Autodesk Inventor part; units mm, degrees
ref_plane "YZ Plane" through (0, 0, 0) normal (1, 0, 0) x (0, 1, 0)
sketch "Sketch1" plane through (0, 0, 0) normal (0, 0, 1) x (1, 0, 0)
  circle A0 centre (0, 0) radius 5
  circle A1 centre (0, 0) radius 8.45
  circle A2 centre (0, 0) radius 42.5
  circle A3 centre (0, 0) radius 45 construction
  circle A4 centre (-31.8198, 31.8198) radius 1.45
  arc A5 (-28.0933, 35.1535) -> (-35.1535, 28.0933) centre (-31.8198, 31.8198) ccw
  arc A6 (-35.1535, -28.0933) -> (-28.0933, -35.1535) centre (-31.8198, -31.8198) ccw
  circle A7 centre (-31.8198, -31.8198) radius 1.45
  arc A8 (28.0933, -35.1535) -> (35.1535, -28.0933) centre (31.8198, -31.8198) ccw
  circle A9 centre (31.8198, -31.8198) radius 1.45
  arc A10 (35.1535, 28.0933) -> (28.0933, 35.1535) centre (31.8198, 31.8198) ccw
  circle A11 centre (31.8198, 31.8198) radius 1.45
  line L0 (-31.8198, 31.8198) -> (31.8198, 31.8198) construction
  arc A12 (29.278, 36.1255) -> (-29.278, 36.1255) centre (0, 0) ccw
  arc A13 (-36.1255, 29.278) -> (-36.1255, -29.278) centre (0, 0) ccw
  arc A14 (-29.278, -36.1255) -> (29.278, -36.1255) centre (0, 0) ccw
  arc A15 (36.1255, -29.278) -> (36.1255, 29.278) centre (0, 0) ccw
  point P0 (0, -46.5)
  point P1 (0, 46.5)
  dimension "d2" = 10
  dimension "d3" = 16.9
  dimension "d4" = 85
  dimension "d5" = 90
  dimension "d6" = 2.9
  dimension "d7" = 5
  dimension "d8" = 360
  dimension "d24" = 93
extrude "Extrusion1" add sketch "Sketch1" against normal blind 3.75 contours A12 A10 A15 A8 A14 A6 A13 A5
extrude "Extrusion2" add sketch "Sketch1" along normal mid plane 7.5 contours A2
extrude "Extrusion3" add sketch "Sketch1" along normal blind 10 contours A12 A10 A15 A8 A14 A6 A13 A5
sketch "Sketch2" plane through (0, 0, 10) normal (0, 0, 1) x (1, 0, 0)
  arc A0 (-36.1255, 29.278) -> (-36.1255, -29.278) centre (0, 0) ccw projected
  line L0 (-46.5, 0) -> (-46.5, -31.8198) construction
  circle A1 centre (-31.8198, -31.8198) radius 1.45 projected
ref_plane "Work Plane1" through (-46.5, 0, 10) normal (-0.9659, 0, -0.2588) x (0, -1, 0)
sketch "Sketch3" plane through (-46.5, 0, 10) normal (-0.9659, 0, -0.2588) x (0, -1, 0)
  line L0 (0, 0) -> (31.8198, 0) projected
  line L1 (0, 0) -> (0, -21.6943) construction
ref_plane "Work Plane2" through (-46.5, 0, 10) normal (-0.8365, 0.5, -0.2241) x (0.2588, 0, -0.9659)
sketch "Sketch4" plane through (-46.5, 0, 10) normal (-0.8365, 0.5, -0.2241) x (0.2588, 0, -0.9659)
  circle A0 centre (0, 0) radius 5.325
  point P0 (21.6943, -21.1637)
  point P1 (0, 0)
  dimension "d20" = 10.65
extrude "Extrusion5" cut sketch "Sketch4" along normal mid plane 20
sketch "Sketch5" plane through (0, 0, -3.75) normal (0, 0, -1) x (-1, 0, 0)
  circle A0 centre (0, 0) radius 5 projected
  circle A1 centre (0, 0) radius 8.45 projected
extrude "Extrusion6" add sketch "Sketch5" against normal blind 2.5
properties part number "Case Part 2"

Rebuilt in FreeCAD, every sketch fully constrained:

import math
import FreeCAD as App
import Part
import Sketcher

V = App.Vector
Q = App.Units.Quantity

doc = App.newDocument("Part")
body = doc.addObject("PartDesign::Body", "Body")

# Sketch on XY plane
sketch1 = body.newObject("Sketcher::SketchObject", "Sketch")
sketch1.AttachmentSupport = (doc.getObject("XY_Plane"), [""])
sketch1.MapMode = "FlatFace"
sketch1.addGeometry(Part.ArcOfCircle(Part.Circle(V(0, 0, 0), V(0, 0, 1), 46.5), math.radians(51), math.radians(129)), False)
sketch1.addGeometry(Part.ArcOfCircle(Part.Circle(V(-31.8, 31.8, 0), V(0, 0, 1), 5), math.radians(59), math.radians(211)), False)
sketch1.addGeometry(Part.ArcOfCircle(Part.Circle(V(0, 0, 0), V(0, 0, 1), 46.5), math.radians(141), math.radians(219)), False)
sketch1.addGeometry(Part.ArcOfCircle(Part.Circle(V(-31.8, -31.8, 0), V(0, 0, 1), 5), math.radians(149), math.radians(301)), False)
sketch1.addGeometry(Part.ArcOfCircle(Part.Circle(V(0, 0, 0), V(0, 0, 1), 46.5), math.radians(-129), math.radians(-51)), False)
sketch1.addGeometry(Part.ArcOfCircle(Part.Circle(V(31.8, -31.8, 0), V(0, 0, 1), 5), math.radians(-121), math.radians(31)), False)
sketch1.addGeometry(Part.ArcOfCircle(Part.Circle(V(0, 0, 0), V(0, 0, 1), 46.5), math.radians(-39), math.radians(39)), False)
sketch1.addGeometry(Part.ArcOfCircle(Part.Circle(V(31.8, 31.8, 0), V(0, 0, 1), 5), math.radians(-31), math.radians(121)), False)
sketch1.addGeometry(Part.Circle(V(-31.8, -31.8, 0), V(0, 0, 1), 1.4), False)
sketch1.addGeometry(Part.Circle(V(0, 0, 0), V(0, 0, 1), 42.5), False)
sketch1.addGeometry(Part.Circle(V(31.8, -31.8, 0), V(0, 0, 1), 1.4), False)
sketch1.addGeometry(Part.Circle(V(-31.8, 31.8, 0), V(0, 0, 1), 1.4), False)
sketch1.addGeometry(Part.Circle(V(31.8, 31.8, 0), V(0, 0, 1), 1.4), False)
sketch1.addConstraint(Sketcher.Constraint("Coincident", 0, 2, 1, 1))
sketch1.addConstraint(Sketcher.Constraint("Coincident", 1, 2, 2, 1))
sketch1.addConstraint(Sketcher.Constraint("Coincident", 2, 2, 3, 1))
sketch1.addConstraint(Sketcher.Constraint("Coincident", 3, 2, 4, 1))
sketch1.addConstraint(Sketcher.Constraint("Coincident", 4, 2, 5, 1))
sketch1.addConstraint(Sketcher.Constraint("Coincident", 5, 2, 6, 1))
sketch1.addConstraint(Sketcher.Constraint("Coincident", 6, 2, 7, 1))
sketch1.addConstraint(Sketcher.Constraint("Coincident", 7, 2, 0, 1))
sketch1.addConstraint(Sketcher.Constraint("Coincident", 0, 3, -1, 1))
sketch1.addConstraint(Sketcher.Constraint("Coincident", 2, 3, -1, 1))
sketch1.addConstraint(Sketcher.Constraint("Coincident", 4, 3, -1, 1))
sketch1.addConstraint(Sketcher.Constraint("Coincident", 6, 3, -1, 1))
sketch1.addConstraint(Sketcher.Constraint("Coincident", 9, 3, -1, 1))
sketch1.addConstraint(Sketcher.Constraint("Coincident", 8, 3, 3, 3))
sketch1.addConstraint(Sketcher.Constraint("Coincident", 10, 3, 5, 3))
sketch1.addConstraint(Sketcher.Constraint("Coincident", 11, 3, 1, 3))
sketch1.addConstraint(Sketcher.Constraint("Coincident", 12, 3, 7, 3))
sketch1.addConstraint(Sketcher.Constraint("Equal", 0, 2))
sketch1.addConstraint(Sketcher.Constraint("Equal", 1, 3))
sketch1.addConstraint(Sketcher.Constraint("Equal", 2, 4))
sketch1.addConstraint(Sketcher.Constraint("Equal", 3, 5))
sketch1.addConstraint(Sketcher.Constraint("Equal", 4, 6))
sketch1.addConstraint(Sketcher.Constraint("Equal", 5, 7))
sketch1.addConstraint(Sketcher.Constraint("Equal", 8, 10))
sketch1.addConstraint(Sketcher.Constraint("Equal", 10, 11))
sketch1.addConstraint(Sketcher.Constraint("Equal", 11, 12))
sketch1.addConstraint(Sketcher.Constraint("Symmetric", 1, 3, 5, 3, -1, 1))
sketch1.addConstraint(Sketcher.Constraint("Symmetric", 3, 3, 7, 3, -1, 1))
sketch1.addConstraint(Sketcher.Constraint("Symmetric", 3, 3, 5, 3, -2))
sketch1.addConstraint(Sketcher.Constraint("Diameter", 9, Q("85 mm")))
sketch1.addConstraint(Sketcher.Constraint("Radius", 1, Q("5 mm")))
sketch1.addConstraint(Sketcher.Constraint("Diameter", 8, Q("2.9 mm")))
sketch1.addConstraint(Sketcher.Constraint("Radius", 0, Q("46.5 mm")))
sketch1.addConstraint(Sketcher.Constraint("DistanceX", 0, 2, -1, 1, Q("29.278 mm")))
sketch1.addConstraint(Sketcher.Constraint("DistanceY", -1, 1, 1, 2, Q("29.278 mm")))
pad1 = body.newObject("PartDesign::Pad", "Pad")
pad1.Profile = sketch1
pad1.Length = 3.75
pad1.Reversed = True

# Sketch on XY plane
sketch2 = body.newObject("Sketcher::SketchObject", "Sketch001")
sketch2.AttachmentSupport = (doc.getObject("XY_Plane"), [""])
sketch2.MapMode = "FlatFace"
sketch2.addGeometry(Part.Circle(V(0, 0, 0), V(0, 0, 1), 42), False)
sketch2.addGeometry(Part.Circle(V(0, 0, 0), V(0, 0, 1), 8), False)
sketch2.addConstraint(Sketcher.Constraint("Coincident", 0, 3, -1, 1))
sketch2.addConstraint(Sketcher.Constraint("Coincident", 1, 3, -1, 1))
sketch2.addConstraint(Sketcher.Constraint("Diameter", 0, Q("85 mm")))
sketch2.addConstraint(Sketcher.Constraint("Diameter", 1, Q("16.9 mm")))
pad2 = body.newObject("PartDesign::Pad", "Pad001")
pad2.Profile = sketch2
pad2.Length = 7.5
pad2.Midplane = True

# Sketch on XY plane
sketch3 = body.newObject("Sketcher::SketchObject", "Sketch002")
sketch3.AttachmentSupport = (doc.getObject("XY_Plane"), [""])
sketch3.MapMode = "FlatFace"
sketch3.addGeometry(Part.ArcOfCircle(Part.Circle(V(0, 0, 0), V(0, 0, 1), 46.5), math.radians(51), math.radians(129)), False)
sketch3.addGeometry(Part.ArcOfCircle(Part.Circle(V(-31.8, 31.8, 0), V(0, 0, 1), 5), math.radians(59), math.radians(211)), False)
sketch3.addGeometry(Part.ArcOfCircle(Part.Circle(V(0, 0, 0), V(0, 0, 1), 46.5), math.radians(141), math.radians(219)), False)
sketch3.addGeometry(Part.ArcOfCircle(Part.Circle(V(-31.8, -31.8, 0), V(0, 0, 1), 5), math.radians(149), math.radians(301)), False)
sketch3.addGeometry(Part.ArcOfCircle(Part.Circle(V(0, 0, 0), V(0, 0, 1), 46.5), math.radians(-129), math.radians(-51)), False)
sketch3.addGeometry(Part.ArcOfCircle(Part.Circle(V(31.8, -31.8, 0), V(0, 0, 1), 5), math.radians(-121), math.radians(31)), False)
sketch3.addGeometry(Part.ArcOfCircle(Part.Circle(V(0, 0, 0), V(0, 0, 1), 46.5), math.radians(-39), math.radians(39)), False)
sketch3.addGeometry(Part.ArcOfCircle(Part.Circle(V(31.8, 31.8, 0), V(0, 0, 1), 5), math.radians(-31), math.radians(121)), False)
sketch3.addGeometry(Part.Circle(V(-31.8, -31.8, 0), V(0, 0, 1), 1.4), False)
sketch3.addGeometry(Part.Circle(V(0, 0, 0), V(0, 0, 1), 42.5), False)
sketch3.addGeometry(Part.Circle(V(31.8, -31.8, 0), V(0, 0, 1), 1.4), False)
sketch3.addGeometry(Part.Circle(V(-31.8, 31.8, 0), V(0, 0, 1), 1.4), False)
sketch3.addGeometry(Part.Circle(V(31.8, 31.8, 0), V(0, 0, 1), 1.4), False)
sketch3.addConstraint(Sketcher.Constraint("Coincident", 0, 2, 1, 1))
sketch3.addConstraint(Sketcher.Constraint("Coincident", 1, 2, 2, 1))
sketch3.addConstraint(Sketcher.Constraint("Coincident", 2, 2, 3, 1))
sketch3.addConstraint(Sketcher.Constraint("Coincident", 3, 2, 4, 1))
sketch3.addConstraint(Sketcher.Constraint("Coincident", 4, 2, 5, 1))
sketch3.addConstraint(Sketcher.Constraint("Coincident", 5, 2, 6, 1))
sketch3.addConstraint(Sketcher.Constraint("Coincident", 6, 2, 7, 1))
sketch3.addConstraint(Sketcher.Constraint("Coincident", 7, 2, 0, 1))
sketch3.addConstraint(Sketcher.Constraint("Coincident", 0, 3, -1, 1))
sketch3.addConstraint(Sketcher.Constraint("Coincident", 2, 3, -1, 1))
sketch3.addConstraint(Sketcher.Constraint("Coincident", 4, 3, -1, 1))
sketch3.addConstraint(Sketcher.Constraint("Coincident", 6, 3, -1, 1))
sketch3.addConstraint(Sketcher.Constraint("Coincident", 9, 3, -1, 1))
sketch3.addConstraint(Sketcher.Constraint("Coincident", 8, 3, 3, 3))
sketch3.addConstraint(Sketcher.Constraint("Coincident", 10, 3, 5, 3))
sketch3.addConstraint(Sketcher.Constraint("Coincident", 11, 3, 1, 3))
sketch3.addConstraint(Sketcher.Constraint("Coincident", 12, 3, 7, 3))
sketch3.addConstraint(Sketcher.Constraint("Equal", 0, 2))
sketch3.addConstraint(Sketcher.Constraint("Equal", 1, 3))
sketch3.addConstraint(Sketcher.Constraint("Equal", 2, 4))
sketch3.addConstraint(Sketcher.Constraint("Equal", 3, 5))
sketch3.addConstraint(Sketcher.Constraint("Equal", 4, 6))
sketch3.addConstraint(Sketcher.Constraint("Equal", 5, 7))
sketch3.addConstraint(Sketcher.Constraint("Equal", 8, 10))
sketch3.addConstraint(Sketcher.Constraint("Equal", 10, 11))
sketch3.addConstraint(Sketcher.Constraint("Equal", 11, 12))
sketch3.addConstraint(Sketcher.Constraint("Symmetric", 1, 3, 5, 3, -1, 1))
sketch3.addConstraint(Sketcher.Constraint("Symmetric", 3, 3, 7, 3, -1, 1))
sketch3.addConstraint(Sketcher.Constraint("Symmetric", 3, 3, 5, 3, -2))
sketch3.addConstraint(Sketcher.Constraint("Diameter", 9, Q("85 mm")))
sketch3.addConstraint(Sketcher.Constraint("Radius", 1, Q("5 mm")))
sketch3.addConstraint(Sketcher.Constraint("Diameter", 8, Q("2.9 mm")))
sketch3.addConstraint(Sketcher.Constraint("Radius", 0, Q("46.5 mm")))
sketch3.addConstraint(Sketcher.Constraint("DistanceX", 0, 2, -1, 1, Q("29.278 mm")))
sketch3.addConstraint(Sketcher.Constraint("DistanceY", -1, 1, 1, 2, Q("29.278 mm")))
pad3 = body.newObject("PartDesign::Pad", "Pad002")
pad3.Profile = sketch3
pad3.Length = 10

# Sketch on an angled plane
sketch4 = body.newObject("Sketcher::SketchObject", "Sketch003")
sketch4.Placement = App.Placement(V(-46.5, 0, 10), App.Rotation(V(0.258787128, 0.000019078, -0.965934378), V(-0.482974249, -0.866018628, -0.12941256), V(-0.836519633, 0.500011735, -0.22410526), "ZXY"))
sketch4.addGeometry(Part.Circle(V(0, 0, 0), V(0, 0, 1), 5), False)
sketch4.addConstraint(Sketcher.Constraint("Coincident", 0, 3, -1, 1))
sketch4.addConstraint(Sketcher.Constraint("Diameter", 0, Q("10.65 mm")))
pocket1 = body.newObject("PartDesign::Pocket", "Pocket")
pocket1.Profile = sketch4
pocket1.Length = 20
pocket1.Midplane = True

# Sketch on XY plane
sketch5 = body.newObject("Sketcher::SketchObject", "Sketch004")
sketch5.AttachmentSupport = (doc.getObject("XY_Plane"), [""])
sketch5.MapMode = "FlatFace"
sketch5.AttachmentOffset = App.Placement(V(0, 0, -3.75), App.Rotation())
sketch5.addGeometry(Part.Circle(V(0, 0, 0), V(0, 0, 1), 8), False)
sketch5.addGeometry(Part.Circle(V(0, 0, 0), V(0, 0, 1), 5), False)
sketch5.addConstraint(Sketcher.Constraint("Coincident", 0, 3, -1, 1))
sketch5.addConstraint(Sketcher.Constraint("Coincident", 1, 3, -1, 1))
sketch5.addConstraint(Sketcher.Constraint("Diameter", 1, Q("10 mm")))
sketch5.addConstraint(Sketcher.Constraint("Diameter", 0, Q("16.9 mm")))
pad4 = body.newObject("PartDesign::Pad", "Pad003")
pad4.Profile = sketch5
pad4.Length = 2.5

doc.recompute()
